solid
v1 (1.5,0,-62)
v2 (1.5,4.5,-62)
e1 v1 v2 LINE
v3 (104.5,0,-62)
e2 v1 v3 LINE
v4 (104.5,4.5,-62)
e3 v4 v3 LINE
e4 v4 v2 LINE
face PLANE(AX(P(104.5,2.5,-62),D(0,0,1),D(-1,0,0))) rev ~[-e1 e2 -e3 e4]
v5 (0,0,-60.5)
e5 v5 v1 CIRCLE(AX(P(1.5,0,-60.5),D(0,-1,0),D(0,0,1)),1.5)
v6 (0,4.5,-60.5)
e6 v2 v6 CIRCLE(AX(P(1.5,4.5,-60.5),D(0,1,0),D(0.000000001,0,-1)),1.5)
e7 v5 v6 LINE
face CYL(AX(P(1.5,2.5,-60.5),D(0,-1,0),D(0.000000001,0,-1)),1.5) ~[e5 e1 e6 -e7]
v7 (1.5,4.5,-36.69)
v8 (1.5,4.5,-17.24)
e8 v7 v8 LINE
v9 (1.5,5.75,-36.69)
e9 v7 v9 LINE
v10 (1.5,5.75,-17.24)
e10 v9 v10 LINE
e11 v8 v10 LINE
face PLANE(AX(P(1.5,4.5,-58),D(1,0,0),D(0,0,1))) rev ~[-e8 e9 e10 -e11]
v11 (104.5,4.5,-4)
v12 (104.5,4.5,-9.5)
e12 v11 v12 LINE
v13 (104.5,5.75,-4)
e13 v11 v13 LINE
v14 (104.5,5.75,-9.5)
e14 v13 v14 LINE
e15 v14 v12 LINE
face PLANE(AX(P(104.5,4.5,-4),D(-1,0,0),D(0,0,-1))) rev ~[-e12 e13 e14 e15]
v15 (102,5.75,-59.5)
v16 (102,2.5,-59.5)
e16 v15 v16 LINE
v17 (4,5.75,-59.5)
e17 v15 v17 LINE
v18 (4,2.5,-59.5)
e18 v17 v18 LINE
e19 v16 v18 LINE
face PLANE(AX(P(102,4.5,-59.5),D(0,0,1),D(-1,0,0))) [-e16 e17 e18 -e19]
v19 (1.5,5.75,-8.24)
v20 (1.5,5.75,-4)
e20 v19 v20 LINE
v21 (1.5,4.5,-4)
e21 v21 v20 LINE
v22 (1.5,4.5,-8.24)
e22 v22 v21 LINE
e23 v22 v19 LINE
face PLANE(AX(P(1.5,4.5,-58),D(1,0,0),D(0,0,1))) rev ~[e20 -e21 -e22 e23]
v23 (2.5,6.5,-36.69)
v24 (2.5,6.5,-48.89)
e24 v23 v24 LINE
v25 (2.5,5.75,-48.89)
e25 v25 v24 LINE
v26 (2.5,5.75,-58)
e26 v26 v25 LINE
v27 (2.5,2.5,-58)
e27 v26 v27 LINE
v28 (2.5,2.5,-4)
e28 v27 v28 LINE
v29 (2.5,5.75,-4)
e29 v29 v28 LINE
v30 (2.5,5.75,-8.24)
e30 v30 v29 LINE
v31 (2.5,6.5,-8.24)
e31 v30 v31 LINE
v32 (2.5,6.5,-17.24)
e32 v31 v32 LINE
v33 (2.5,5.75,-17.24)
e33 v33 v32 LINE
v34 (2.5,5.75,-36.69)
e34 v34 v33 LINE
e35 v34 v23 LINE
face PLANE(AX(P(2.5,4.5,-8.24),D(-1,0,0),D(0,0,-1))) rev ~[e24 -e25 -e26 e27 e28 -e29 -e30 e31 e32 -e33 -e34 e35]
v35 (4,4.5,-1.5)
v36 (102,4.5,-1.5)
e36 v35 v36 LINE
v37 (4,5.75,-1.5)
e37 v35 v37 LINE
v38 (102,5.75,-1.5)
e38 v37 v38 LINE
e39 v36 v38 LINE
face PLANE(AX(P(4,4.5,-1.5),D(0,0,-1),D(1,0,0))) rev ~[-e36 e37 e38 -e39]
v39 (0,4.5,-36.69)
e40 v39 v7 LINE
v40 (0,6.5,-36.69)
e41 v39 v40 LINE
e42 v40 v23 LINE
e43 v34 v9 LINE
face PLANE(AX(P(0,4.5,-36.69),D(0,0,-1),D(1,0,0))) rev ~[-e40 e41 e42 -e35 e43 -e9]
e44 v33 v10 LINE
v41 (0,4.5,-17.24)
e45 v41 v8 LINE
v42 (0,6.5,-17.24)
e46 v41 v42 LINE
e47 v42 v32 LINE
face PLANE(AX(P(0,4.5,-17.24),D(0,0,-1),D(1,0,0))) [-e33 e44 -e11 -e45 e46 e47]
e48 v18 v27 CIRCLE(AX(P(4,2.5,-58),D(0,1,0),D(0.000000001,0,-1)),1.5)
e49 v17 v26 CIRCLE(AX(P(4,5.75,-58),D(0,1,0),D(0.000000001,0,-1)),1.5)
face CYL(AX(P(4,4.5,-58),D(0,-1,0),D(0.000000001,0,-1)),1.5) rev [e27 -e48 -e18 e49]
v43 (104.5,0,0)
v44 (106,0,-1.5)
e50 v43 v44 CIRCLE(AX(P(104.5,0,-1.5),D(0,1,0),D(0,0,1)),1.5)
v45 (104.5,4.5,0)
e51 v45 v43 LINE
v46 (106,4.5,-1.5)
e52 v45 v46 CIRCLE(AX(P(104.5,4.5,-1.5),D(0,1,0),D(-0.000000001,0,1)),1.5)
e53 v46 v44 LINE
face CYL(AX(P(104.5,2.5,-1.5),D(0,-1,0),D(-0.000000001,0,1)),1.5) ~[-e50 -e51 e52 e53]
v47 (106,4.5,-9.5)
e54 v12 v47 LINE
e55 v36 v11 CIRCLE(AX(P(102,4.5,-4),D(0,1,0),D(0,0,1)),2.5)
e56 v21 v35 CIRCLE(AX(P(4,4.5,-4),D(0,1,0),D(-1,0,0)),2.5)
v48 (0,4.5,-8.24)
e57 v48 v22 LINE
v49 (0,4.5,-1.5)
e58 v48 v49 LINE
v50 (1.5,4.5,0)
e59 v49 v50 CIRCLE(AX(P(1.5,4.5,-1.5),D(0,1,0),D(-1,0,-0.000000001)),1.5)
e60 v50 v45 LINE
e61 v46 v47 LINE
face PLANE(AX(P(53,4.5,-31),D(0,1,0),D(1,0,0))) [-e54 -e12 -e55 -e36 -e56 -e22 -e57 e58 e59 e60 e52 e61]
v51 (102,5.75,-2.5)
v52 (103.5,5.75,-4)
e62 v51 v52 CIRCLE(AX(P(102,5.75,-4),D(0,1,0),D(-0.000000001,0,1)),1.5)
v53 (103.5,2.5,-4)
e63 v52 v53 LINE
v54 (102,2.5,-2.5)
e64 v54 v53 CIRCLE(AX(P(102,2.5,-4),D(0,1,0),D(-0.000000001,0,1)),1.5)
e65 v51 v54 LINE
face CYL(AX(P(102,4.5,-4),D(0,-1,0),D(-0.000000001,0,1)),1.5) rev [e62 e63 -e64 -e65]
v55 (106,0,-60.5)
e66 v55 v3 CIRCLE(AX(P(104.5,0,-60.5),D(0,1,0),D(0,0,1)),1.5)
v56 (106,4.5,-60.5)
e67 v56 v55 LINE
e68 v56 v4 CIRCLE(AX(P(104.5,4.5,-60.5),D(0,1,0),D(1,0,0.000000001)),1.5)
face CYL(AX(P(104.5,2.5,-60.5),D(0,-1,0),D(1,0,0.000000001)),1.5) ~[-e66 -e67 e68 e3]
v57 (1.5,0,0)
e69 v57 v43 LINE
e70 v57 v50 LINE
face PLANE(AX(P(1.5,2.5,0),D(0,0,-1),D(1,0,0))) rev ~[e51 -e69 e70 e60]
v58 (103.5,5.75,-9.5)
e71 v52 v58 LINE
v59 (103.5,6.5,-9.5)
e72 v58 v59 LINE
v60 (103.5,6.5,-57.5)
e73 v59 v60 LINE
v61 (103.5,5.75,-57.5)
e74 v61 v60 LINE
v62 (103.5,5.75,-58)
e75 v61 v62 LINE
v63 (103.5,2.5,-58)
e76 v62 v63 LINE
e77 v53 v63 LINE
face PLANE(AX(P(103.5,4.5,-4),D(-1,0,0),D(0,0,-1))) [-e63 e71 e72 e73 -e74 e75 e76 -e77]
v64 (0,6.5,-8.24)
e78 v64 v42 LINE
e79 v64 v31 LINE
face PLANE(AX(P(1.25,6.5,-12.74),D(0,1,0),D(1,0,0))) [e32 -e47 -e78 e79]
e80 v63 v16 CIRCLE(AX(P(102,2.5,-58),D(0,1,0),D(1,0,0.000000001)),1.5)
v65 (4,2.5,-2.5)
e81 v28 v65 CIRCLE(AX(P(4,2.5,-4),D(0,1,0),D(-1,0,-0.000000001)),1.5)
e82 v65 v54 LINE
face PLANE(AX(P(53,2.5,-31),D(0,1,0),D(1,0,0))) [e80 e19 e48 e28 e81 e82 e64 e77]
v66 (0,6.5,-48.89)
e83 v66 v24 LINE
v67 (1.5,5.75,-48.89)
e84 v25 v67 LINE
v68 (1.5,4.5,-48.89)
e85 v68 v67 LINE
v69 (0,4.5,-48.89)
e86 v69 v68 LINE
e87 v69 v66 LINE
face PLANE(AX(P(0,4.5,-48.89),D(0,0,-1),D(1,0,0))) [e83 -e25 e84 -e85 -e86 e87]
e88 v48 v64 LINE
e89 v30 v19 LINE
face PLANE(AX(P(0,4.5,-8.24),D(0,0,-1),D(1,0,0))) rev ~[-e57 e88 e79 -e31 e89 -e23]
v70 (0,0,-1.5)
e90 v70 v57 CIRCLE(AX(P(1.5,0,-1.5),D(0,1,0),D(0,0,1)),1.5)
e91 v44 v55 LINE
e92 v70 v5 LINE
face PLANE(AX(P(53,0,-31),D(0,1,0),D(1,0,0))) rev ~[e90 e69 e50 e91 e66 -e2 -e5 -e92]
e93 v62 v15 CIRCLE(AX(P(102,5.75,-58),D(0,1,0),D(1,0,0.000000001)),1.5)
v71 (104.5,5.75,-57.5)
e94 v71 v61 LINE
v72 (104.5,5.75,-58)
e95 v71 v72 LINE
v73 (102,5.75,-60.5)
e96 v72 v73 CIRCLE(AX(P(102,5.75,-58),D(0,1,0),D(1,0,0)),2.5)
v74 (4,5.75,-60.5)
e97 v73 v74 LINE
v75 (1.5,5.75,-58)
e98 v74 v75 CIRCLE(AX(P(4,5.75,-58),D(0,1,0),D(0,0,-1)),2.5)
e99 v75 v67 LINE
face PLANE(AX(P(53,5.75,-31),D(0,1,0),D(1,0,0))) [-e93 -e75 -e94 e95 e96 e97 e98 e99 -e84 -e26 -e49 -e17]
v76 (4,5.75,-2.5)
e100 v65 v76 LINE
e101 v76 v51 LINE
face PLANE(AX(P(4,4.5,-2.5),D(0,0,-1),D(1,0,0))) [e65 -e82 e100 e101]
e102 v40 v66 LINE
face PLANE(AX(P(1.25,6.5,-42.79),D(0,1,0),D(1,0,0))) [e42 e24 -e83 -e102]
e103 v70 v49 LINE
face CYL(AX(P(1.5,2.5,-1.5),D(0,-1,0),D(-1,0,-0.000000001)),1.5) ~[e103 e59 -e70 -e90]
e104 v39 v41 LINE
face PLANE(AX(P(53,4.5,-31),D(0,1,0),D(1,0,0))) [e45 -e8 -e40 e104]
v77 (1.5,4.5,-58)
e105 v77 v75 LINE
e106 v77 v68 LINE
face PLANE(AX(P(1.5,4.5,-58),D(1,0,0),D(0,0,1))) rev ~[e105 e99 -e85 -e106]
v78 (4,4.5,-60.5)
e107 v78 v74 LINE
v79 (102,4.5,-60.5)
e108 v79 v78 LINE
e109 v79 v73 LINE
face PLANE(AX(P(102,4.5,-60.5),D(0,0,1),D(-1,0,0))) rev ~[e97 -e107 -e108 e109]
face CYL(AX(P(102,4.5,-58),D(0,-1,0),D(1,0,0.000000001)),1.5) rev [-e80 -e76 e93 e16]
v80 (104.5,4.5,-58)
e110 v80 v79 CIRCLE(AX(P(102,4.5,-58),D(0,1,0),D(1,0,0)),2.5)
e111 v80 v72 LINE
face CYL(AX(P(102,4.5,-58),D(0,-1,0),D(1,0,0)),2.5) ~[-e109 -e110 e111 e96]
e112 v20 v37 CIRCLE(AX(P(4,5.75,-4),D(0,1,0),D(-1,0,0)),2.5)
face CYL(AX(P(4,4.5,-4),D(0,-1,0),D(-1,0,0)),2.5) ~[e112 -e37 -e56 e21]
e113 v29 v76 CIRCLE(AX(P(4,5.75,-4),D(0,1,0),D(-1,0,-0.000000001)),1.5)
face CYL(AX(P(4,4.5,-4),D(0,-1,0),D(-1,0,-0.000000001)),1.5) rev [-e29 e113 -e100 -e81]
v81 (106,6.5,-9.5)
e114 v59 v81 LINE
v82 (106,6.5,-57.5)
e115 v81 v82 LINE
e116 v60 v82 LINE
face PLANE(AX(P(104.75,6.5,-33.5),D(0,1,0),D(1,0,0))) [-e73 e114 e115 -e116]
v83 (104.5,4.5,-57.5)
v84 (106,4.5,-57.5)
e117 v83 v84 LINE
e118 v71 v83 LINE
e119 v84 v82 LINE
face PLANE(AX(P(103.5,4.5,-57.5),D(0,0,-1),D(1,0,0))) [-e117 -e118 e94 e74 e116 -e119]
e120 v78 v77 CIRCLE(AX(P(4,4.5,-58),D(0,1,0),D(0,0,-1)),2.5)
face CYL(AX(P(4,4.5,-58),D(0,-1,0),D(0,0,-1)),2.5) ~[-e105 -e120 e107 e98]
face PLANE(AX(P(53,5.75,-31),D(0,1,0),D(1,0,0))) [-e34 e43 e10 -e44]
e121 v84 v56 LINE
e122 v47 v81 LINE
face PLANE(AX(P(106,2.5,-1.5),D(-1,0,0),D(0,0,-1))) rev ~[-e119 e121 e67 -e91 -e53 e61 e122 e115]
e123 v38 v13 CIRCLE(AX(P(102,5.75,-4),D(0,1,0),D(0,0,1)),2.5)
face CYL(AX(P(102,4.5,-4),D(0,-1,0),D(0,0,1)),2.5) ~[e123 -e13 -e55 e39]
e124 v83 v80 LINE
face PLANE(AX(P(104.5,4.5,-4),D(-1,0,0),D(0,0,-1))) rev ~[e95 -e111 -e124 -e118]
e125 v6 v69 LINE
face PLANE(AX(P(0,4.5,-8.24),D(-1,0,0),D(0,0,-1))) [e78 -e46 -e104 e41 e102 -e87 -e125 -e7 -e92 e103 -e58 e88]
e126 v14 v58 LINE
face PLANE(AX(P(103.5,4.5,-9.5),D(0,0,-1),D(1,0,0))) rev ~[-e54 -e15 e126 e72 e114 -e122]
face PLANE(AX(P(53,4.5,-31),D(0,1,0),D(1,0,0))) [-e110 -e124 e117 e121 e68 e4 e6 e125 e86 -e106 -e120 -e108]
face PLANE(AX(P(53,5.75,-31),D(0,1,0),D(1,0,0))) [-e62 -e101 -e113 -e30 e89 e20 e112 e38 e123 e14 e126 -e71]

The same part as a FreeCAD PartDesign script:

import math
import FreeCAD as App
import Part
import Sketcher

V = App.Vector
Q = App.Units.Quantity


def edges_at(feature, points):
    """Names of the edges that pass closest to the given points."""
    edges = feature.Shape.Edges
    near = lambda p: min(range(len(edges)), key=lambda i: edges[i].distToShape(Part.Vertex(*p))[0])
    return sorted({f"Edge{near(p) + 1}" for p in points})

doc = App.newDocument("Part")
params = doc.addObject("Spreadsheet::Sheet", "Params")
for row, (alias, value) in enumerate([
    ("sketch1_width", "106 mm"),
    ("sketch1_height", "62 mm"),
    ("pad1_length", "2.5 mm"),
    ("fillet_radius", "1.5 mm"),
    ("sketch2_radius", "1.5 mm"),
    ("sketch2_width", "103 mm"),
    ("sketch2_width2", "98 mm"),
    ("sketch2_height", "59 mm"),
    ("sketch2_height2", "54 mm"),
    ("pad2_length", "2 mm"),
    ("sketch3_radius", "2.5 mm"),
    ("sketch3_radius2", "1.5 mm"),
    ("sketch3_width", "98 mm"),
    ("sketch3_height", "54 mm"),
    ("pad3_length", "1.25 mm"),
    ("sketch4_height", "9 mm"),
    ("sketch4_height2", "48 mm"),
    ("sketch4_width", "2.5 mm"),
    ("sketch4_height3", "12.2 mm"),
    ("pad4_length", "2 mm"),
], start=1):
    params.set(f"A{row}", alias)
    params.set(f"B{row}", "=" + value)
    params.setAlias(f"B{row}", alias)

body = doc.addObject("PartDesign::Body", "Body")

# Sketch on XZ plane
sketch1 = body.newObject("Sketcher::SketchObject", "Sketch")
sketch1.AttachmentSupport = (doc.getObject("XZ_Plane"), [""])
sketch1.MapMode = "FlatFace"
sketch1.addGeometry([
    Part.LineSegment(V(0, -62, 0), V(0, 0, 0)),
    Part.LineSegment(V(0, 0, 0), V(106, 0, 0)),
    Part.LineSegment(V(106, 0, 0), V(106, -62, 0)),
    Part.LineSegment(V(106, -62, 0), V(0, -62, 0)),
], False)
sketch1.addConstraint([
    Sketcher.Constraint("Coincident", 0, 2, 1, 1),
    Sketcher.Constraint("Coincident", 1, 2, 2, 1),
    Sketcher.Constraint("Coincident", 2, 2, 3, 1),
    Sketcher.Constraint("Coincident", 3, 2, 0, 1),
    Sketcher.Constraint("Vertical", 0),
    Sketcher.Constraint("Horizontal", 1),
    Sketcher.Constraint("Vertical", 2),
    Sketcher.Constraint("Horizontal", 3),
    Sketcher.Constraint("Coincident", 0, 2, -1, 1),
    Sketcher.Constraint("DistanceX", 1, 1, 1, 2, Q("106 mm")),
    Sketcher.Constraint("DistanceY", 0, 1, 0, 2, Q("62 mm")),
])
sketch1.setExpression("Constraints[9]", "Params.sketch1_width")
sketch1.setExpression("Constraints[10]", "Params.sketch1_height")
pad1 = body.newObject("PartDesign::Pad", "Pad")
pad1.Profile = sketch1
pad1.setExpression("Length", "Params.pad1_length")
pad1.Reversed = True
doc.recompute()

fillet = body.newObject("PartDesign::Fillet", "Fillet")
fillet.Base = (pad1, edges_at(pad1, [
    (0, 1.25, 0),
    (0, 1.25, -62),
    (106, 1.25, -62),
    (106, 1.25, 0),
]))
fillet.setExpression("Radius", "Params.fillet_radius")

# Sketch on XZ plane
sketch2 = body.newObject("Sketcher::SketchObject", "Sketch001")
sketch2.AttachmentSupport = (doc.getObject("XZ_Plane"), [""])
sketch2.MapMode = "FlatFace"
sketch2.AttachmentOffset = App.Placement(V(0, 0, -2.5), App.Rotation())
sketch2.addGeometry([
    Part.LineSegment(V(104.5, -62, 0), V(1.5, -62, 0)),  # 0
    Part.ArcOfCircle(Part.Circle(V(1.5, -60.5, 0), V(0, 0, 1), 1.5), math.radians(180), math.radians(270)),  # 1
    Part.LineSegment(V(0, -60.5, 0), V(0, -1.5, 0)),  # 2
    Part.ArcOfCircle(Part.Circle(V(1.5, -1.5, 0), V(0, 0, 1), 1.5), math.radians(90), math.radians(180)),  # 3
    Part.LineSegment(V(1.5, 0, 0), V(104.5, 0, 0)),  # 4
    Part.ArcOfCircle(Part.Circle(V(104.5, -1.5, 0), V(0, 0, 1), 1.5), math.radians(0), math.radians(90)),  # 5
    Part.LineSegment(V(106, -1.5, 0), V(106, -60.5, 0)),  # 6
    Part.ArcOfCircle(Part.Circle(V(104.5, -60.5, 0), V(0, 0, 1), 1.5), math.radians(-90), math.radians(0)),  # 7
    Part.LineSegment(V(4, -59.5, 0), V(102, -59.5, 0)),  # 8
    Part.ArcOfCircle(Part.Circle(V(102, -58, 0), V(0, 0, 1), 1.5), math.radians(-90), math.radians(0)),  # 9
    Part.LineSegment(V(103.5, -58, 0), V(103.5, -4, 0)),  # 10
    Part.ArcOfCircle(Part.Circle(V(102, -4, 0), V(0, 0, 1), 1.5), math.radians(0), math.radians(90)),  # 11
    Part.LineSegment(V(102, -2.5, 0), V(4, -2.5, 0)),  # 12
    Part.ArcOfCircle(Part.Circle(V(4, -4, 0), V(0, 0, 1), 1.5), math.radians(90), math.radians(180)),  # 13
    Part.LineSegment(V(2.5, -4, 0), V(2.5, -58, 0)),  # 14
    Part.ArcOfCircle(Part.Circle(V(4, -58, 0), V(0, 0, 1), 1.5), math.radians(180), math.radians(270)),  # 15
], False)
sketch2.addConstraint([
    Sketcher.Constraint("Tangent", 0, 2, 1, 2),
    Sketcher.Constraint("Tangent", 1, 1, 2, 1),
    Sketcher.Constraint("Tangent", 2, 2, 3, 2),
    Sketcher.Constraint("Tangent", 3, 1, 4, 1),
    Sketcher.Constraint("Tangent", 4, 2, 5, 2),
    Sketcher.Constraint("Tangent", 5, 1, 6, 1),
    Sketcher.Constraint("Tangent", 6, 2, 7, 2),
    Sketcher.Constraint("Tangent", 7, 1, 0, 1),
    Sketcher.Constraint("Tangent", 8, 2, 9, 1),
    Sketcher.Constraint("Tangent", 9, 2, 10, 1),
    Sketcher.Constraint("Tangent", 10, 2, 11, 1),
    Sketcher.Constraint("Tangent", 11, 2, 12, 1),
    Sketcher.Constraint("Tangent", 12, 2, 13, 1),
    Sketcher.Constraint("Tangent", 13, 2, 14, 1),
    Sketcher.Constraint("Tangent", 14, 2, 15, 1),
    Sketcher.Constraint("Tangent", 15, 2, 8, 1),
    Sketcher.Constraint("Horizontal", 0),
    Sketcher.Constraint("Vertical", 2),
    Sketcher.Constraint("Horizontal", 4),
    Sketcher.Constraint("Vertical", 6),
    Sketcher.Constraint("Horizontal", 8),
    Sketcher.Constraint("Vertical", 10),
    Sketcher.Constraint("Horizontal", 12),
    Sketcher.Constraint("Vertical", 14),
    Sketcher.Constraint("Equal", 1, 3),
    Sketcher.Constraint("Equal", 3, 5),
    Sketcher.Constraint("Equal", 5, 7),
    Sketcher.Constraint("Equal", 7, 9),
    Sketcher.Constraint("Equal", 9, 11),
    Sketcher.Constraint("Equal", 11, 13),
    Sketcher.Constraint("Equal", 13, 15),
    Sketcher.Constraint("PointOnObject", 1, 1, -2),
    Sketcher.Constraint("PointOnObject", 3, 1, -1),
    Sketcher.Constraint("Radius", 1, Q("1.5 mm")),
    Sketcher.Constraint("DistanceX", 0, 2, 0, 1, Q("103 mm")),
    Sketcher.Constraint("DistanceX", 8, 1, 8, 2, Q("98 mm")),
    Sketcher.Constraint("DistanceY", 2, 1, 2, 2, Q("59 mm")),
    Sketcher.Constraint("DistanceY", 10, 1, 10, 2, Q("54 mm")),
    Sketcher.Constraint("DistanceX", -1, 1, 9, 3, Q("102 mm")),
    Sketcher.Constraint("DistanceY", 9, 3, -1, 1, Q("58 mm")),
])
sketch2.setExpression("Constraints[33]", "Params.sketch2_radius")
sketch2.setExpression("Constraints[34]", "Params.sketch2_width")
sketch2.setExpression("Constraints[35]", "Params.sketch2_width2")
sketch2.setExpression("Constraints[36]", "Params.sketch2_height")
sketch2.setExpression("Constraints[37]", "Params.sketch2_height2")
pad2 = body.newObject("PartDesign::Pad", "Pad001")
pad2.Profile = sketch2
pad2.setExpression("Length", "Params.pad2_length")
pad2.Reversed = True

# Sketch on XZ plane
sketch3 = body.newObject("Sketcher::SketchObject", "Sketch002")
sketch3.AttachmentSupport = (doc.getObject("XZ_Plane"), [""])
sketch3.MapMode = "FlatFace"
sketch3.AttachmentOffset = App.Placement(V(0, 0, -4.5), App.Rotation())
sketch3.addGeometry([
    Part.LineSegment(V(4, -1.5, 0), V(102, -1.5, 0)),  # 0
    Part.ArcOfCircle(Part.Circle(V(102, -4, 0), V(0, 0, 1), 2.5), math.radians(0), math.radians(90)),  # 1
    Part.LineSegment(V(104.5, -4, 0), V(104.5, -58, 0)),  # 2
    Part.ArcOfCircle(Part.Circle(V(102, -58, 0), V(0, 0, 1), 2.5), math.radians(-90), math.radians(0)),  # 3
    Part.LineSegment(V(102, -60.5, 0), V(4, -60.5, 0)),  # 4
    Part.ArcOfCircle(Part.Circle(V(4, -58, 0), V(0, 0, 1), 2.5), math.radians(180), math.radians(270)),  # 5
    Part.LineSegment(V(1.5, -58, 0), V(1.5, -4, 0)),  # 6
    Part.ArcOfCircle(Part.Circle(V(4, -4, 0), V(0, 0, 1), 2.5), math.radians(90), math.radians(180)),  # 7
    Part.LineSegment(V(102, -2.5, 0), V(4, -2.5, 0)),  # 8
    Part.ArcOfCircle(Part.Circle(V(4, -4, 0), V(0, 0, 1), 1.5), math.radians(90), math.radians(180)),  # 9
    Part.LineSegment(V(2.5, -4, 0), V(2.5, -58, 0)),  # 10
    Part.ArcOfCircle(Part.Circle(V(4, -58, 0), V(0, 0, 1), 1.5), math.radians(180), math.radians(270)),  # 11
    Part.LineSegment(V(4, -59.5, 0), V(102, -59.5, 0)),  # 12
    Part.ArcOfCircle(Part.Circle(V(102, -58, 0), V(0, 0, 1), 1.5), math.radians(-90), math.radians(0)),  # 13
    Part.LineSegment(V(103.5, -58, 0), V(103.5, -4, 0)),  # 14
    Part.ArcOfCircle(Part.Circle(V(102, -4, 0), V(0, 0, 1), 1.5), math.radians(0), math.radians(90)),  # 15
], False)
sketch3.addConstraint([
    Sketcher.Constraint("Tangent", 0, 2, 1, 2),
    Sketcher.Constraint("Tangent", 1, 1, 2, 1),
    Sketcher.Constraint("Tangent", 2, 2, 3, 2),
    Sketcher.Constraint("Tangent", 3, 1, 4, 1),
    Sketcher.Constraint("Tangent", 4, 2, 5, 2),
    Sketcher.Constraint("Tangent", 5, 1, 6, 1),
    Sketcher.Constraint("Tangent", 6, 2, 7, 2),
    Sketcher.Constraint("Tangent", 7, 1, 0, 1),
    Sketcher.Constraint("Tangent", 8, 2, 9, 1),
    Sketcher.Constraint("Tangent", 9, 2, 10, 1),
    Sketcher.Constraint("Tangent", 10, 2, 11, 1),
    Sketcher.Constraint("Tangent", 11, 2, 12, 1),
    Sketcher.Constraint("Tangent", 12, 2, 13, 1),
    Sketcher.Constraint("Tangent", 13, 2, 14, 1),
    Sketcher.Constraint("Tangent", 14, 2, 15, 1),
    Sketcher.Constraint("Tangent", 15, 2, 8, 1),
    Sketcher.Constraint("Horizontal", 0),
    Sketcher.Constraint("Vertical", 2),
    Sketcher.Constraint("Horizontal", 4),
    Sketcher.Constraint("Vertical", 6),
    Sketcher.Constraint("Horizontal", 8),
    Sketcher.Constraint("Vertical", 10),
    Sketcher.Constraint("Horizontal", 12),
    Sketcher.Constraint("Vertical", 14),
    Sketcher.Constraint("Coincident", 9, 3, 7, 3),
    Sketcher.Constraint("Coincident", 11, 3, 5, 3),
    Sketcher.Constraint("Coincident", 13, 3, 3, 3),
    Sketcher.Constraint("Equal", 1, 3),
    Sketcher.Constraint("Equal", 3, 5),
    Sketcher.Constraint("Equal", 5, 7),
    Sketcher.Constraint("Equal", 13, 15),
    Sketcher.Constraint("Radius", 1, Q("2.5 mm")),
    Sketcher.Constraint("Radius", 9, Q("1.5 mm")),
    Sketcher.Constraint("DistanceX", 0, 1, 0, 2, Q("98 mm")),
    Sketcher.Constraint("DistanceY", 2, 2, 2, 1, Q("54 mm")),
    Sketcher.Constraint("DistanceX", -1, 1, 1, 3, Q("102 mm")),
    Sketcher.Constraint("DistanceY", 1, 3, -1, 1, Q("4 mm")),
])
sketch3.setExpression("Constraints[31]", "Params.sketch3_radius")
sketch3.setExpression("Constraints[32]", "Params.sketch3_radius2")
sketch3.setExpression("Constraints[33]", "Params.sketch3_width")
sketch3.setExpression("Constraints[34]", "Params.sketch3_height")
pad3 = body.newObject("PartDesign::Pad", "Pad002")
pad3.Profile = sketch3
pad3.setExpression("Length", "Params.pad3_length")
pad3.Reversed = True

# Sketch on XZ plane
sketch4 = body.newObject("Sketcher::SketchObject", "Sketch003")
sketch4.AttachmentSupport = (doc.getObject("XZ_Plane"), [""])
sketch4.MapMode = "FlatFace"
sketch4.AttachmentOffset = App.Placement(V(0, 0, -4.5), App.Rotation())
sketch4.addGeometry([
    Part.LineSegment(V(0, -17.2, 0), V(0, -8.2, 0)),  # 0
    Part.LineSegment(V(0, -8.2, 0), V(2.5, -8.2, 0)),  # 1
    Part.LineSegment(V(2.5, -8.2, 0), V(2.5, -17.2, 0)),  # 2
    Part.LineSegment(V(2.5, -17.2, 0), V(0, -17.2, 0)),  # 3
    Part.LineSegment(V(0, -48.9, 0), V(0, -36.7, 0)),  # 4
    Part.LineSegment(V(0, -36.7, 0), V(2.5, -36.7, 0)),  # 5
    Part.LineSegment(V(2.5, -36.7, 0), V(2.5, -48.9, 0)),  # 6
    Part.LineSegment(V(2.5, -48.9, 0), V(0, -48.9, 0)),  # 7
    Part.LineSegment(V(103.5, -57.5, 0), V(103.5, -9.5, 0)),  # 8
    Part.LineSegment(V(103.5, -9.5, 0), V(106, -9.5, 0)),  # 9
    Part.LineSegment(V(106, -9.5, 0), V(106, -57.5, 0)),  # 10
    Part.LineSegment(V(106, -57.5, 0), V(103.5, -57.5, 0)),  # 11
], False)
sketch4.addConstraint([
    Sketcher.Constraint("Coincident", 0, 2, 1, 1),
    Sketcher.Constraint("Coincident", 1, 2, 2, 1),
    Sketcher.Constraint("Coincident", 2, 2, 3, 1),
    Sketcher.Constraint("Coincident", 3, 2, 0, 1),
    Sketcher.Constraint("Coincident", 4, 2, 5, 1),
    Sketcher.Constraint("Coincident", 5, 2, 6, 1),
    Sketcher.Constraint("Coincident", 6, 2, 7, 1),
    Sketcher.Constraint("Coincident", 7, 2, 4, 1),
    Sketcher.Constraint("Coincident", 8, 2, 9, 1),
    Sketcher.Constraint("Coincident", 9, 2, 10, 1),
    Sketcher.Constraint("Coincident", 10, 2, 11, 1),
    Sketcher.Constraint("Coincident", 11, 2, 8, 1),
    Sketcher.Constraint("Vertical", 0),
    Sketcher.Constraint("Horizontal", 1),
    Sketcher.Constraint("Vertical", 2),
    Sketcher.Constraint("Horizontal", 3),
    Sketcher.Constraint("Vertical", 4),
    Sketcher.Constraint("Horizontal", 5),
    Sketcher.Constraint("Vertical", 6),
    Sketcher.Constraint("Horizontal", 7),
    Sketcher.Constraint("Vertical", 8),
    Sketcher.Constraint("Horizontal", 9),
    Sketcher.Constraint("Vertical", 10),
    Sketcher.Constraint("Horizontal", 11),
    Sketcher.Constraint("PointOnObject", 0, 2, -2),
    Sketcher.Constraint("PointOnObject", 4, 2, -2),
    Sketcher.Constraint("Vertical", 2, 2, 5, 2),
    Sketcher.Constraint("Equal", 7, 9),
    Sketcher.Constraint("DistanceY", 0, 1, 0, 2, Q("9 mm")),
    Sketcher.Constraint("DistanceY", 8, 1, 8, 2, Q("48 mm")),
    Sketcher.Constraint("DistanceX", 1, 1, 1, 2, Q("2.5 mm")),
    Sketcher.Constraint("DistanceY", 4, 1, 4, 2, Q("12.2 mm")),
    Sketcher.Constraint("DistanceX", -1, 1, 9, 2, Q("106 mm")),
    Sketcher.Constraint("DistanceY", 8, 2, -1, 1, Q("9.5 mm")),
    Sketcher.Constraint("DistanceY", 0, 2, -1, 1, Q("8.24 mm")),
    Sketcher.Constraint("DistanceY", 4, 2, -1, 1, Q("36.69 mm")),
])
sketch4.setExpression("Constraints[28]", "Params.sketch4_height")
sketch4.setExpression("Constraints[29]", "Params.sketch4_height2")
sketch4.setExpression("Constraints[30]", "Params.sketch4_width")
sketch4.setExpression("Constraints[31]", "Params.sketch4_height3")
pad4 = body.newObject("PartDesign::Pad", "Pad003")
pad4.Profile = sketch4
pad4.setExpression("Length", "Params.pad4_length")
pad4.Reversed = True

doc.recompute()
